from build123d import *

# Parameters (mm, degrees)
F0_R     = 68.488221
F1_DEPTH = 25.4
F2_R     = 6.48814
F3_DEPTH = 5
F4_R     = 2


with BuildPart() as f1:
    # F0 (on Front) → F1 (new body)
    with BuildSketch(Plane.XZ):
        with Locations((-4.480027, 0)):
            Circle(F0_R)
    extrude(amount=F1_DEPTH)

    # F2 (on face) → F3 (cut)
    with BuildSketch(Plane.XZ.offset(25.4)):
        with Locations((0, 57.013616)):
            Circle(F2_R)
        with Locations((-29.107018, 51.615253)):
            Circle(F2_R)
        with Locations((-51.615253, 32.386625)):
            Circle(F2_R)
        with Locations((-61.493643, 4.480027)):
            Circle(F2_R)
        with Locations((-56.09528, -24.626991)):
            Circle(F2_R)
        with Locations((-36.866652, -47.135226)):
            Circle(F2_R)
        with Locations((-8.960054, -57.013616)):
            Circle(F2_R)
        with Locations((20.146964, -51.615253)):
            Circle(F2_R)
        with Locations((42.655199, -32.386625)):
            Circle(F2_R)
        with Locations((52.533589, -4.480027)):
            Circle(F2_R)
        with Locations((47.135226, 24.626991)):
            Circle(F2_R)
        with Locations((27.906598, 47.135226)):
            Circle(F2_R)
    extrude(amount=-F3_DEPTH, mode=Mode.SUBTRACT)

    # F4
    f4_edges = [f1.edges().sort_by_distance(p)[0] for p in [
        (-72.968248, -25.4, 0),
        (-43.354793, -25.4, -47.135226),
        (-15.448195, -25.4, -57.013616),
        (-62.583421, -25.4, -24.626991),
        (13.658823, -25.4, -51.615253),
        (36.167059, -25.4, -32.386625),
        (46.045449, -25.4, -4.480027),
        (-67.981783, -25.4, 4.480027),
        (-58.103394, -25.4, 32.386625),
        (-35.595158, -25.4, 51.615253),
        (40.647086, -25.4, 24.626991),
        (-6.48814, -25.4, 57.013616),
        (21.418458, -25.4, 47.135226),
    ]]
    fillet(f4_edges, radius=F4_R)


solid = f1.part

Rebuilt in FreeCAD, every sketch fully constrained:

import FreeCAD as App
import Part
import Sketcher


def edges_at(feature, points):
    """Names of the edges that pass closest to the given points."""
    edges = feature.Shape.Edges
    near = lambda p: min(range(len(edges)), key=lambda i: edges[i].distToShape(Part.Vertex(*p))[0])
    return sorted({f"Edge{near(p) + 1}" for p in points})

doc = App.newDocument("Part")
params = doc.addObject("Spreadsheet::Sheet", "Params")
for row, (alias, value) in enumerate([
    ("pad1_length", "25.4 mm"),
    ("pocket1_length", "5 mm"),
    ("fillet_radius", "2 mm"),
], start=1):
    params.set(f"A{row}", alias)
    params.set(f"B{row}", "=" + value)
    params.setAlias(f"B{row}", alias)

body = doc.addObject("PartDesign::Body", "Body")

# Sketch on XZ plane
sketch1 = body.newObject("Sketcher::SketchObject", "Sketch")
sketch1.AttachmentSupport = (doc.getObject("XZ_Plane"), [""])
sketch1.MapMode = "FlatFace"
sketch1.addGeometry(Part.Circle(App.Vector(-4, 0, 0), App.Vector(0, 0, 1), 68), False)
sketch1.addConstraint([
    Sketcher.Constraint("PointOnObject", 0, 3, -1),
    Sketcher.Constraint("Diameter", 0, 136.976442),
    Sketcher.Constraint("DistanceX", 0, 3, -1, 1, 4.480027),
])
pad1 = body.newObject("PartDesign::Pad", "Pad")
pad1.Profile = sketch1
pad1.setExpression("Length", "Params.pad1_length")

# Sketch on XZ plane
sketch2 = body.newObject("Sketcher::SketchObject", "Sketch001")
sketch2.AttachmentSupport = (doc.getObject("XZ_Plane"), [""])
sketch2.MapMode = "FlatFace"
sketch2.AttachmentOffset = App.Placement(App.Vector(0, 0, 25.4), App.Rotation())
sketch2.addGeometry([
    Part.Circle(App.Vector(0, 57, 0), App.Vector(0, 0, 1), 6),  # 0
    Part.Circle(App.Vector(-29, 52, 0), App.Vector(0, 0, 1), 6),  # 1
    Part.Circle(App.Vector(-52, 32, 0), App.Vector(0, 0, 1), 6),  # 2
    Part.Circle(App.Vector(-61, 4, 0), App.Vector(0, 0, 1), 6),  # 3
    Part.Circle(App.Vector(-56, -25, 0), App.Vector(0, 0, 1), 6),  # 4
    Part.Circle(App.Vector(-37, -47, 0), App.Vector(0, 0, 1), 6),  # 5
    Part.Circle(App.Vector(-9, -57, 0), App.Vector(0, 0, 1), 6),  # 6
    Part.Circle(App.Vector(20, -52, 0), App.Vector(0, 0, 1), 6),  # 7
    Part.Circle(App.Vector(43, -32, 0), App.Vector(0, 0, 1), 6),  # 8
    Part.Circle(App.Vector(53, -4, 0), App.Vector(0, 0, 1), 6),  # 9
    Part.Circle(App.Vector(47, 25, 0), App.Vector(0, 0, 1), 6),  # 10
    Part.Circle(App.Vector(28, 47, 0), App.Vector(0, 0, 1), 6),  # 11
], False)
sketch2.addConstraint([
    Sketcher.Constraint("Equal", 0, 1),
    Sketcher.Constraint("Equal", 1, 2),
    Sketcher.Constraint("Equal", 2, 3),
    Sketcher.Constraint("Equal", 3, 4),
    Sketcher.Constraint("Equal", 4, 5),
    Sketcher.Constraint("Equal", 5, 6),
    Sketcher.Constraint("Equal", 6, 7),
    Sketcher.Constraint("Equal", 7, 8),
    Sketcher.Constraint("Equal", 8, 9),
    Sketcher.Constraint("Equal", 9, 10),
    Sketcher.Constraint("Equal", 10, 11),
    Sketcher.Constraint("PointOnObject", 0, 3, -2),
    Sketcher.Constraint("Diameter", 0, 12.97628),
    Sketcher.Constraint("DistanceX", -1, 1, 8, 3, 42.655199),
    Sketcher.Constraint("DistanceY", 3, 3, 2, 3, 27.906598),
    Sketcher.Constraint("DistanceX", 2, 3, 5, 3, 14.748601),
    Sketcher.Constraint("DistanceX", 5, 3, 6, 3, 27.906598),
    Sketcher.Constraint("DistanceY", 5, 3, 8, 3, 14.748601),
    Sketcher.Constraint("DistanceY", 8, 3, 9, 3, 27.906598),
    Sketcher.Constraint("DistanceY", 2, 3, 11, 3, 14.748601),
    Sketcher.Constraint("DistanceX", 1, 3, -1, 1, 29.107018),
    Sketcher.Constraint("DistanceX", 4, 3, -1, 1, 56.09528),
    Sketcher.Constraint("DistanceY", 4, 3, -1, 1, 24.626991),
    Sketcher.Constraint("DistanceX", -1, 1, 9, 3, 52.533589),
    Sketcher.Constraint("DistanceY", -1, 1, 10, 3, 24.626991),
    Sketcher.Constraint("DistanceY", 2, 3, 1, 3, 19.228628),
    Sketcher.Constraint("DistanceY", 2, 3, 0, 3, 24.626991),
    Sketcher.Constraint("DistanceX", 3, 3, 2, 3, 9.87839),
    Sketcher.Constraint("DistanceY", 4, 3, 3, 3, 29.107018),
    Sketcher.Constraint("DistanceX", 4, 3, 5, 3, 19.228628),
    Sketcher.Constraint("DistanceY", 5, 3, 2, 3, 79.521851),
    Sketcher.Constraint("DistanceY", 6, 3, 5, 3, 9.87839),
    Sketcher.Constraint("DistanceX", 6, 3, 7, 3, 29.107018),
    Sketcher.Constraint("DistanceY", 7, 3, 3, 3, 56.09528),
    Sketcher.Constraint("DistanceX", 11, 3, 10, 3, 19.228628),
    Sketcher.Constraint("DistanceX", 11, 3, 9, 3, 24.626991),
])
pocket1 = body.newObject("PartDesign::Pocket", "Pocket")
pocket1.Profile = sketch2
pocket1.setExpression("Length", "Params.pocket1_length")
doc.recompute()

fillet = body.newObject("PartDesign::Fillet", "Fillet")
fillet.Base = (pocket1, edges_at(pocket1, [
    (-72.968, -25.4, 0),
    (-43.355, -25.4, -47.135),
    (-15.448, -25.4, -57.014),
    (-62.583, -25.4, -24.627),
    (13.659, -25.4, -51.615),
    (36.167, -25.4, -32.387),
    (46.045, -25.4, -4.48),
    (-67.982, -25.4, 4.48),
    (-58.103, -25.4, 32.387),
    (-35.595, -25.4, 51.615),
    (40.647, -25.4, 24.627),
    (-6.488, -25.4, 57.014),
    (21.418, -25.4, 47.135),
]))
fillet.setExpression("Radius", "Params.fillet_radius")

doc.recompute()
